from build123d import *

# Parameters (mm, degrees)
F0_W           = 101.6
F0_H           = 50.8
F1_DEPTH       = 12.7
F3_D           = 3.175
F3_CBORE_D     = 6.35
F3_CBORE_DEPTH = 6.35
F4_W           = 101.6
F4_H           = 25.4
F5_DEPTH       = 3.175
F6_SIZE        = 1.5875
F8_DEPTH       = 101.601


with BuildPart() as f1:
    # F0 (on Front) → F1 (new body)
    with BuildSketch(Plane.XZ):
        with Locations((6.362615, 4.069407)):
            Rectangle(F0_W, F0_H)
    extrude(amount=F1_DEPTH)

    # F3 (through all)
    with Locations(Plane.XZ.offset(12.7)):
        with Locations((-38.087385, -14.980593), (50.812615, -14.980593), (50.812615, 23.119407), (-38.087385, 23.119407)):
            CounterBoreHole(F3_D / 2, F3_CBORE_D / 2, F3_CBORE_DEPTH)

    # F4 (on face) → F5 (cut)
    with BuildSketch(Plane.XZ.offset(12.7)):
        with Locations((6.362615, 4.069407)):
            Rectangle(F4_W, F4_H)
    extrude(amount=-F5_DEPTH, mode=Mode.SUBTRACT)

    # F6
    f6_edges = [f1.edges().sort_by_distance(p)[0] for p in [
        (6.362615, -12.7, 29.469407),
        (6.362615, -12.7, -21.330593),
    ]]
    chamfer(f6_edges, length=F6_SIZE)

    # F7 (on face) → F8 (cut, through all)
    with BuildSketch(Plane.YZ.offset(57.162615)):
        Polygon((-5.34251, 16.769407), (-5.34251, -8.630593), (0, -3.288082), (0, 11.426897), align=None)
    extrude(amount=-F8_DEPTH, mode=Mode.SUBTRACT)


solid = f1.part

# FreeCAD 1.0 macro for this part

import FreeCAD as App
import Part
import Sketcher
from FreeCAD import Vector
Q = App.Units.Quantity


def edges_at(feature, points):
    """Names of the edges that pass closest to the given points."""
    edges = feature.Shape.Edges
    near = lambda p: min(range(len(edges)), key=lambda i: edges[i].distToShape(Part.Vertex(*p))[0])
    return sorted({f"Edge{near(p) + 1}" for p in points})


def add_polygon(sketch, points):
    """Adds a closed chain of lines whose ends are joined by coincident constraints."""
    first, n = sketch.GeometryCount, len(points)
    for a, b in zip(points, points[1:] + points[:1]):
        sketch.addGeometry(Part.LineSegment(App.Vector(*a, 0), App.Vector(*b, 0)), False)
    for i in range(n):
        sketch.addConstraint(Sketcher.Constraint("Coincident", first + i, 2, first + (i + 1) % n, 1))

doc = App.newDocument("Part")
params = doc.addObject("Spreadsheet::Sheet", "Params")
for row, (alias, value) in enumerate([
    ("sketch1_width", "4 in"),
    ("sketch1_height", "2 in"),
    ("pad1_length", "0.5 in"),
    ("sketch2_diameter", "0.125 in"),
    ("hole_diameter", "0.125 in"),
    ("hole_cbore_diameter", "0.25 in"),
    ("hole_cbore_depth", "0.25 in"),
    ("sketch3_width", "4 in"),
    ("sketch3_height", "1 in"),
    ("pocket1_length", "0.125 in"),
    ("chamfer_size", "0.0625 in"),
    ("sketch4_height", "1 in"),
], start=1):
    params.set(f"A{row}", alias)
    params.set(f"B{row}", "=" + value)
    params.setAlias(f"B{row}", alias)

body = doc.addObject("PartDesign::Body", "Body")

sketch1 = body.newObject("Sketcher::SketchObject", "Sketch")
sketch1.AttachmentSupport = (doc.getObject("XZ_Plane"), [""])
sketch1.MapMode = "FlatFace"
add_polygon(sketch1, [(-44, 29), (-44, -21), (57, -21), (57, 29)])
sketch1.addConstraint(Sketcher.Constraint("Vertical", 0))
sketch1.addConstraint(Sketcher.Constraint("Horizontal", 1))
sketch1.addConstraint(Sketcher.Constraint("Vertical", 2))
sketch1.addConstraint(Sketcher.Constraint("Horizontal", 3))
sketch1.addConstraint(Sketcher.Constraint("DistanceX", 1, 1, 1, 2, Q("4 in")))
sketch1.addConstraint(Sketcher.Constraint("DistanceY", 0, 2, 0, 1, Q("2 in")))
sketch1.addConstraint(Sketcher.Constraint("DistanceX", 0, 2, -1, 1, Q("44.437385 mm")))
sketch1.addConstraint(Sketcher.Constraint("DistanceY", 0, 2, -1, 1, Q("21.330593 mm")))
sketch1.setExpression("Constraints[8]", "Params.sketch1_width")
sketch1.setExpression("Constraints[9]", "Params.sketch1_height")
pad1 = body.newObject("PartDesign::Pad", "Pad")
pad1.Profile = sketch1
pad1.setExpression("Length", "Params.pad1_length")

sketch2 = body.newObject("Sketcher::SketchObject", "Sketch001")
sketch2.AttachmentSupport = (doc.getObject("XZ_Plane"), [""])
sketch2.MapMode = "FlatFace"
sketch2.AttachmentOffset = App.Placement(Vector(0, 0, 0.5 * 25.4), App.Rotation())
sketch2.addGeometry(Part.Circle(Vector(-38.1, -15, 0), Vector(0, 0, 1), 1.6), False)
sketch2.addGeometry(Part.Circle(Vector(50.8, -15, 0), Vector(0, 0, 1), 1.6), False)
sketch2.addGeometry(Part.Circle(Vector(50.8, 23.1, 0), Vector(0, 0, 1), 1.6), False)
sketch2.addGeometry(Part.Circle(Vector(-38.1, 23.1, 0), Vector(0, 0, 1), 1.6), False)
sketch2.addConstraint(Sketcher.Constraint("Equal", 0, 1))
sketch2.addConstraint(Sketcher.Constraint("Equal", 1, 2))
sketch2.addConstraint(Sketcher.Constraint("Equal", 2, 3))
sketch2.addConstraint(Sketcher.Constraint("Horizontal", 0, 3, 1, 3))
sketch2.addConstraint(Sketcher.Constraint("Horizontal", 2, 3, 3, 3))
sketch2.addConstraint(Sketcher.Constraint("Vertical", 1, 3, 2, 3))
sketch2.addConstraint(Sketcher.Constraint("Vertical", 0, 3, 3, 3))
sketch2.addConstraint(Sketcher.Constraint("Diameter", 0, Q("0.125 in")))
sketch2.addConstraint(Sketcher.Constraint("DistanceX", 0, 3, 1, 3, Q("3.5 in")))
sketch2.addConstraint(Sketcher.Constraint("DistanceY", 1, 3, 2, 3, Q("1.5 in")))
sketch2.addConstraint(Sketcher.Constraint("DistanceX", 0, 3, -1, 1, Q("38.087385 mm")))
sketch2.addConstraint(Sketcher.Constraint("DistanceY", 0, 3, -1, 1, Q("14.980593 mm")))
sketch2.setExpression("Constraints[7]", "Params.sketch2_diameter")
doc.recompute()
hole = body.newObject("PartDesign::Hole", "Hole")
hole.Profile = sketch2
hole.ThreadType = "None"
hole.setExpression("Diameter", "Params.hole_diameter")
hole.DepthType = "ThroughAll"
hole.HoleCutType = "Counterbore"
hole.setExpression("HoleCutDiameter", "Params.hole_cbore_diameter")
hole.setExpression("HoleCutDepth", "Params.hole_cbore_depth")

sketch3 = body.newObject("Sketcher::SketchObject", "Sketch002")
sketch3.AttachmentSupport = (doc.getObject("XZ_Plane"), [""])
sketch3.MapMode = "FlatFace"
sketch3.AttachmentOffset = App.Placement(Vector(0, 0, 0.5 * 25.4), App.Rotation())
add_polygon(sketch3, [(-44, 17), (-44, -9), (57, -9), (57, 17)])
sketch3.addConstraint(Sketcher.Constraint("Vertical", 0))
sketch3.addConstraint(Sketcher.Constraint("Horizontal", 1))
sketch3.addConstraint(Sketcher.Constraint("Vertical", 2))
sketch3.addConstraint(Sketcher.Constraint("Horizontal", 3))
sketch3.addConstraint(Sketcher.Constraint("DistanceX", 1, 1, 1, 2, Q("4 in")))
sketch3.addConstraint(Sketcher.Constraint("DistanceY", 0, 2, 0, 1, Q("1 in")))
sketch3.addConstraint(Sketcher.Constraint("DistanceX", 0, 2, -1, 1, Q("44.437385 mm")))
sketch3.addConstraint(Sketcher.Constraint("DistanceY", 0, 2, -1, 1, Q("8.630593 mm")))
sketch3.setExpression("Constraints[8]", "Params.sketch3_width")
sketch3.setExpression("Constraints[9]", "Params.sketch3_height")
pocket1 = body.newObject("PartDesign::Pocket", "Pocket")
pocket1.Profile = sketch3
pocket1.setExpression("Length", "Params.pocket1_length")
doc.recompute()

chamfer = body.newObject("PartDesign::Chamfer", "Chamfer")
chamfer.Base = (pocket1, edges_at(pocket1, [(6.363, -12.7, 29.469), (6.363, -12.7, -21.331)]))
chamfer.setExpression("Size", "Params.chamfer_size")

sketch4 = body.newObject("Sketcher::SketchObject", "Sketch003")
sketch4.AttachmentSupport = (doc.getObject("YZ_Plane"), [""])
sketch4.MapMode = "FlatFace"
sketch4.AttachmentOffset = App.Placement(Vector(0, 0, 57.162615), App.Rotation())
add_polygon(sketch4, [(-5, 17), (-5, -9), (0, -3), (0, 11)])
sketch4.addConstraint(Sketcher.Constraint("Vertical", 0))
sketch4.addConstraint(Sketcher.Constraint("Vertical", 2))
sketch4.addConstraint(Sketcher.Constraint("PointOnObject", 1, 2, -2))
sketch4.addConstraint(Sketcher.Constraint("Perpendicular", 1, 3))
sketch4.addConstraint(Sketcher.Constraint("Equal", 1, 3))
sketch4.addConstraint(Sketcher.Constraint("DistanceY", 0, 2, 0, 1, Q("1 in")))
sketch4.addConstraint(Sketcher.Constraint("DistanceY", 2, 1, 2, 2, Q("14.714979 mm")))
sketch4.addConstraint(Sketcher.Constraint("DistanceY", 0, 2, -1, 1, Q("8.630593 mm")))
sketch4.setExpression("Constraints[9]", "Params.sketch4_height")
pocket2 = body.newObject("PartDesign::Pocket", "Pocket001")
pocket2.Profile = sketch4
pocket2.Type = "ThroughAll"

doc.recompute()
